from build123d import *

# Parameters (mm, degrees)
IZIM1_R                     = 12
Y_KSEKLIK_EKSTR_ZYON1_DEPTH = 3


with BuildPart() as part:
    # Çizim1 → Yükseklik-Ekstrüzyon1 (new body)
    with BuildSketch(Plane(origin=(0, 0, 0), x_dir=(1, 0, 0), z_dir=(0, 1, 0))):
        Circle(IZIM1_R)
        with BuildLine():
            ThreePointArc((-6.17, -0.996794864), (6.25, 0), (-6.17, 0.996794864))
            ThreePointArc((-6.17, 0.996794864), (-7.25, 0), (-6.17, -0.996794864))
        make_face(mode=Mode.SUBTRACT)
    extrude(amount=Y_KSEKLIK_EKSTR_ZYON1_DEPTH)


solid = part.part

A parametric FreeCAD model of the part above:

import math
import FreeCAD as App
import Part
import Sketcher
Q = App.Units.Quantity

doc = App.newDocument("Part")
body = doc.addObject("PartDesign::Body", "Body")

sketch1 = body.newObject("Sketcher::SketchObject", "Sketch")
sketch1.AttachmentSupport = (doc.getObject("XZ_Plane"), [""])
sketch1.MapMode = "FlatFace"
sketch1.addGeometry([
    Part.Circle(App.Vector(0, 0, 0), App.Vector(0, 0, 1), 12),
    Part.ArcOfCircle(Part.Circle(App.Vector(0, 0, 0), App.Vector(0, 0, 1), 6.25), math.radians(-170.822869), math.radians(170.822869)),
    Part.ArcOfCircle(Part.Circle(App.Vector(-6.25, 0, 0), App.Vector(0, 0, 1), 1), math.radians(85.411434), math.radians(274.588566)),
], False)
sketch1.addConstraint([
    Sketcher.Constraint("Coincident", 1, 1, 2, 2),
    Sketcher.Constraint("Coincident", 2, 1, 1, 2),
    Sketcher.Constraint("Coincident", 0, 3, -1, 1),
    Sketcher.Constraint("Coincident", 1, 3, -1, 1),
    Sketcher.Constraint("PointOnObject", 2, 3, -1),
    Sketcher.Constraint("Diameter", 0, Q("24 mm")),
    Sketcher.Constraint("Radius", 2, Q("1 mm")),
    Sketcher.Constraint("Radius", 1, Q("6.25 mm")),
    Sketcher.Constraint("DistanceX", 2, 3, -1, 1, Q("6.25 mm")),
])
pad1 = body.newObject("PartDesign::Pad", "Pad")
pad1.Profile = sketch1
pad1.Length = 3
pad1.Reversed = True

doc.recompute()
